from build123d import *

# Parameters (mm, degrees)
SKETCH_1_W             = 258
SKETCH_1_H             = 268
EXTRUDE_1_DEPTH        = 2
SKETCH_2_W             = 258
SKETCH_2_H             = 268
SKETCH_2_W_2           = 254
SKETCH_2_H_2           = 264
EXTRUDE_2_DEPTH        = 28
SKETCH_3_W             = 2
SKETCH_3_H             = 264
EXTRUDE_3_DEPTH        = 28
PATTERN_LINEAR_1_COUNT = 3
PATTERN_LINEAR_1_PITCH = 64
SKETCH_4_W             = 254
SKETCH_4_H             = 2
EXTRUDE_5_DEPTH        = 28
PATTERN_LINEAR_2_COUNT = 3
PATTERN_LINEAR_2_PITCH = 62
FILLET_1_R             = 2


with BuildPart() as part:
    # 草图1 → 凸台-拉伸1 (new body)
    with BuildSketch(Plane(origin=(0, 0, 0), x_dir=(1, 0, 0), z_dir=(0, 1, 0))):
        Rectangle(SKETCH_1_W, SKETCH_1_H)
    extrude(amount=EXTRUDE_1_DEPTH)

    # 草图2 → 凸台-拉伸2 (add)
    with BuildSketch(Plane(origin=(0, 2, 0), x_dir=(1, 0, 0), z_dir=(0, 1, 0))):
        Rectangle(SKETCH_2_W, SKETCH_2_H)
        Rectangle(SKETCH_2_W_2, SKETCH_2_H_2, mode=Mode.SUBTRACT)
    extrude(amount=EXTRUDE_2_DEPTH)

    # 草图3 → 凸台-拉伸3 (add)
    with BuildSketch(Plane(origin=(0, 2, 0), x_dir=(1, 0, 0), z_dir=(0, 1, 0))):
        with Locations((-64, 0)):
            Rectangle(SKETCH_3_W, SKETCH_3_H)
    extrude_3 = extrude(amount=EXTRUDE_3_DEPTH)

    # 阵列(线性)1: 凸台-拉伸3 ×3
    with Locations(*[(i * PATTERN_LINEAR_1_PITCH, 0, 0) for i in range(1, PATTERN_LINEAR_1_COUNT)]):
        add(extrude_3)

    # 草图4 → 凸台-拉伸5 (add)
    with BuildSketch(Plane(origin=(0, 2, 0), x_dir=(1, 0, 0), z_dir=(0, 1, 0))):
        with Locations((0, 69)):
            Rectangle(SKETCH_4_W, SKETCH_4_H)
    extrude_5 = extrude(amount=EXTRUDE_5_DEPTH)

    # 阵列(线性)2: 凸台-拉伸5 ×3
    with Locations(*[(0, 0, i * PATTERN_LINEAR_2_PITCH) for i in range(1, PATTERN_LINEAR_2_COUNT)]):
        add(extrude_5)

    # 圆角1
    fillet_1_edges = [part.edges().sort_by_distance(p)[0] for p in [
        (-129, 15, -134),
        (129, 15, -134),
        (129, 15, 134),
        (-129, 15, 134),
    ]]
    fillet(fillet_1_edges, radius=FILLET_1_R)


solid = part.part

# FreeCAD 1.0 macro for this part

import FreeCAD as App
import Part
import Sketcher

V = App.Vector


def edges_at(feature, points):
    """Names of the edges that pass closest to the given points."""
    edges = feature.Shape.Edges
    near = lambda p: min(range(len(edges)), key=lambda i: edges[i].distToShape(Part.Vertex(*p))[0])
    return sorted({f"Edge{near(p) + 1}" for p in points})

doc = App.newDocument("Part")
params = doc.addObject("Spreadsheet::Sheet", "Params")
for row, (alias, value) in enumerate([
    ("sketch1_width", "258 mm"),
    ("sketch1_height", "268 mm"),
    ("pad1_length", "2 mm"),
    ("sketch2_width", "258 mm"),
    ("sketch2_width2", "254 mm"),
    ("sketch2_height", "268 mm"),
    ("sketch2_height2", "264 mm"),
    ("pad2_length", "28 mm"),
    ("sketch3_width", "2 mm"),
    ("sketch3_height", "264 mm"),
    ("pad3_length", "28 mm"),
    ("linearpattern_pitch", "64 mm"),
    ("sketch4_width", "254 mm"),
    ("sketch4_height", "2 mm"),
    ("pad4_length", "28 mm"),
    ("linearpattern2_pitch", "62 mm"),
    ("fillet_radius", "2 mm"),
], start=1):
    params.set(f"A{row}", alias)
    params.set(f"B{row}", "=" + value)
    params.setAlias(f"B{row}", alias)

body = doc.addObject("PartDesign::Body", "Body")

# Sketch on XZ plane
sketch1 = body.newObject("Sketcher::SketchObject", "Sketch")
sketch1.AttachmentSupport = (doc.getObject("XZ_Plane"), [""])
sketch1.MapMode = "FlatFace"
sketch1.addGeometry([
    Part.LineSegment(V(-129, -134, 0), V(-129, 134, 0)),
    Part.LineSegment(V(-129, 134, 0), V(129, 134, 0)),
    Part.LineSegment(V(129, 134, 0), V(129, -134, 0)),
    Part.LineSegment(V(129, -134, 0), V(-129, -134, 0)),
], False)
sketch1.addConstraint([
    Sketcher.Constraint("Coincident", 0, 2, 1, 1),
    Sketcher.Constraint("Coincident", 1, 2, 2, 1),
    Sketcher.Constraint("Coincident", 2, 2, 3, 1),
    Sketcher.Constraint("Coincident", 3, 2, 0, 1),
    Sketcher.Constraint("Vertical", 0),
    Sketcher.Constraint("Horizontal", 1),
    Sketcher.Constraint("Vertical", 2),
    Sketcher.Constraint("Horizontal", 3),
    Sketcher.Constraint("Symmetric", 0, 2, 2, 2, -1, 1),
    Sketcher.Constraint("DistanceX", 1, 1, 1, 2, 258.0),
    Sketcher.Constraint("DistanceY", 0, 1, 0, 2, 268.0),
])
sketch1.setExpression("Constraints[9]", "Params.sketch1_width")
sketch1.setExpression("Constraints[10]", "Params.sketch1_height")
pad1 = body.newObject("PartDesign::Pad", "Pad")
pad1.Profile = sketch1
pad1.setExpression("Length", "Params.pad1_length")
pad1.Reversed = True

# Sketch on XZ plane
sketch2 = body.newObject("Sketcher::SketchObject", "Sketch001")
sketch2.AttachmentSupport = (doc.getObject("XZ_Plane"), [""])
sketch2.MapMode = "FlatFace"
sketch2.AttachmentOffset = App.Placement(V(0, 0, -2), App.Rotation())
sketch2.addGeometry([
    Part.LineSegment(V(-129, -134, 0), V(-129, 134, 0)),  # 0
    Part.LineSegment(V(-129, 134, 0), V(129, 134, 0)),  # 1
    Part.LineSegment(V(129, 134, 0), V(129, -134, 0)),  # 2
    Part.LineSegment(V(129, -134, 0), V(-129, -134, 0)),  # 3
    Part.LineSegment(V(127, 132, 0), V(-127, 132, 0)),  # 4
    Part.LineSegment(V(-127, 132, 0), V(-127, -132, 0)),  # 5
    Part.LineSegment(V(-127, -132, 0), V(127, -132, 0)),  # 6
    Part.LineSegment(V(127, -132, 0), V(127, 132, 0)),  # 7
], False)
sketch2.addConstraint([
    Sketcher.Constraint("Coincident", 0, 2, 1, 1),
    Sketcher.Constraint("Coincident", 1, 2, 2, 1),
    Sketcher.Constraint("Coincident", 2, 2, 3, 1),
    Sketcher.Constraint("Coincident", 3, 2, 0, 1),
    Sketcher.Constraint("Coincident", 4, 2, 5, 1),
    Sketcher.Constraint("Coincident", 5, 2, 6, 1),
    Sketcher.Constraint("Coincident", 6, 2, 7, 1),
    Sketcher.Constraint("Coincident", 7, 2, 4, 1),
    Sketcher.Constraint("Vertical", 0),
    Sketcher.Constraint("Horizontal", 1),
    Sketcher.Constraint("Vertical", 2),
    Sketcher.Constraint("Horizontal", 3),
    Sketcher.Constraint("Horizontal", 4),
    Sketcher.Constraint("Vertical", 5),
    Sketcher.Constraint("Horizontal", 6),
    Sketcher.Constraint("Vertical", 7),
    Sketcher.Constraint("Symmetric", 0, 2, 2, 2, -1, 1),
    Sketcher.Constraint("Symmetric", 4, 2, 6, 2, -1, 1),
    Sketcher.Constraint("DistanceX", 1, 1, 1, 2, 258.0),
    Sketcher.Constraint("DistanceX", 4, 2, 4, 1, 254.0),
    Sketcher.Constraint("DistanceY", 0, 1, 0, 2, 268.0),
    Sketcher.Constraint("DistanceY", 5, 2, 5, 1, 264.0),
])
sketch2.setExpression("Constraints[18]", "Params.sketch2_width")
sketch2.setExpression("Constraints[19]", "Params.sketch2_width2")
sketch2.setExpression("Constraints[20]", "Params.sketch2_height")
sketch2.setExpression("Constraints[21]", "Params.sketch2_height2")
pad2 = body.newObject("PartDesign::Pad", "Pad001")
pad2.Profile = sketch2
pad2.setExpression("Length", "Params.pad2_length")
pad2.Reversed = True

# Sketch on XZ plane
sketch3 = body.newObject("Sketcher::SketchObject", "Sketch002")
sketch3.AttachmentSupport = (doc.getObject("XZ_Plane"), [""])
sketch3.MapMode = "FlatFace"
sketch3.AttachmentOffset = App.Placement(V(0, 0, -2), App.Rotation())
sketch3.addGeometry([
    Part.LineSegment(V(-65, -132, 0), V(-65, 132, 0)),
    Part.LineSegment(V(-65, 132, 0), V(-63, 132, 0)),
    Part.LineSegment(V(-63, 132, 0), V(-63, -132, 0)),
    Part.LineSegment(V(-63, -132, 0), V(-65, -132, 0)),
], False)
sketch3.addConstraint([
    Sketcher.Constraint("Coincident", 0, 2, 1, 1),
    Sketcher.Constraint("Coincident", 1, 2, 2, 1),
    Sketcher.Constraint("Coincident", 2, 2, 3, 1),
    Sketcher.Constraint("Coincident", 3, 2, 0, 1),
    Sketcher.Constraint("Vertical", 0),
    Sketcher.Constraint("Horizontal", 1),
    Sketcher.Constraint("Vertical", 2),
    Sketcher.Constraint("Horizontal", 3),
    Sketcher.Constraint("DistanceX", 1, 1, 1, 2, 2.0),
    Sketcher.Constraint("DistanceY", 0, 1, 0, 2, 264.0),
    Sketcher.Constraint("DistanceX", 0, 2, -1, 1, 65.0),
    Sketcher.Constraint("DistanceY", -1, 1, 0, 2, 132.0),
])
sketch3.setExpression("Constraints[8]", "Params.sketch3_width")
sketch3.setExpression("Constraints[9]", "Params.sketch3_height")
pad3 = body.newObject("PartDesign::Pad", "Pad002")
pad3.Profile = sketch3
pad3.setExpression("Length", "Params.pad3_length")
pad3.Reversed = True
doc.recompute()

linearpattern = body.newObject("PartDesign::LinearPattern", "LinearPattern")
linearpattern.Originals = [pad3]
linearpattern.Direction = (doc.getObject("X_Axis"), [""])
linearpattern.Mode = "offset"
linearpattern.setExpression("Offset", "Params.linearpattern_pitch")
linearpattern.Occurrences = 3
body.Tip = linearpattern

# Sketch on XZ plane
sketch4 = body.newObject("Sketcher::SketchObject", "Sketch003")
sketch4.AttachmentSupport = (doc.getObject("XZ_Plane"), [""])
sketch4.MapMode = "FlatFace"
sketch4.AttachmentOffset = App.Placement(V(0, 0, -2), App.Rotation())
sketch4.addGeometry([
    Part.LineSegment(V(-127, -70, 0), V(-127, -68, 0)),
    Part.LineSegment(V(-127, -68, 0), V(127, -68, 0)),
    Part.LineSegment(V(127, -68, 0), V(127, -70, 0)),
    Part.LineSegment(V(127, -70, 0), V(-127, -70, 0)),
], False)
sketch4.addConstraint([
    Sketcher.Constraint("Coincident", 0, 2, 1, 1),
    Sketcher.Constraint("Coincident", 1, 2, 2, 1),
    Sketcher.Constraint("Coincident", 2, 2, 3, 1),
    Sketcher.Constraint("Coincident", 3, 2, 0, 1),
    Sketcher.Constraint("Vertical", 0),
    Sketcher.Constraint("Horizontal", 1),
    Sketcher.Constraint("Vertical", 2),
    Sketcher.Constraint("Horizontal", 3),
    Sketcher.Constraint("DistanceX", 1, 1, 1, 2, 254.0),
    Sketcher.Constraint("DistanceY", 0, 1, 0, 2, 2.0),
    Sketcher.Constraint("DistanceX", 0, 2, -1, 1, 127.0),
    Sketcher.Constraint("DistanceY", 0, 2, -1, 1, 68.0),
])
sketch4.setExpression("Constraints[8]", "Params.sketch4_width")
sketch4.setExpression("Constraints[9]", "Params.sketch4_height")
pad4 = body.newObject("PartDesign::Pad", "Pad003")
pad4.Profile = sketch4
pad4.setExpression("Length", "Params.pad4_length")
pad4.Reversed = True
doc.recompute()

linearpattern2 = body.newObject("PartDesign::LinearPattern", "LinearPattern001")
linearpattern2.Originals = [pad4]
linearpattern2.Direction = (doc.getObject("Z_Axis"), [""])
linearpattern2.Mode = "offset"
linearpattern2.setExpression("Offset", "Params.linearpattern2_pitch")
linearpattern2.Occurrences = 3
body.Tip = linearpattern2
doc.recompute()

fillet = body.newObject("PartDesign::Fillet", "Fillet")
fillet.Base = (linearpattern2, edges_at(linearpattern2, [
    (-129, 15, -134),
    (129, 15, -134),
    (129, 15, 134),
    (-129, 15, 134),
]))
fillet.setExpression("Radius", "Params.fillet_radius")

doc.recompute()
